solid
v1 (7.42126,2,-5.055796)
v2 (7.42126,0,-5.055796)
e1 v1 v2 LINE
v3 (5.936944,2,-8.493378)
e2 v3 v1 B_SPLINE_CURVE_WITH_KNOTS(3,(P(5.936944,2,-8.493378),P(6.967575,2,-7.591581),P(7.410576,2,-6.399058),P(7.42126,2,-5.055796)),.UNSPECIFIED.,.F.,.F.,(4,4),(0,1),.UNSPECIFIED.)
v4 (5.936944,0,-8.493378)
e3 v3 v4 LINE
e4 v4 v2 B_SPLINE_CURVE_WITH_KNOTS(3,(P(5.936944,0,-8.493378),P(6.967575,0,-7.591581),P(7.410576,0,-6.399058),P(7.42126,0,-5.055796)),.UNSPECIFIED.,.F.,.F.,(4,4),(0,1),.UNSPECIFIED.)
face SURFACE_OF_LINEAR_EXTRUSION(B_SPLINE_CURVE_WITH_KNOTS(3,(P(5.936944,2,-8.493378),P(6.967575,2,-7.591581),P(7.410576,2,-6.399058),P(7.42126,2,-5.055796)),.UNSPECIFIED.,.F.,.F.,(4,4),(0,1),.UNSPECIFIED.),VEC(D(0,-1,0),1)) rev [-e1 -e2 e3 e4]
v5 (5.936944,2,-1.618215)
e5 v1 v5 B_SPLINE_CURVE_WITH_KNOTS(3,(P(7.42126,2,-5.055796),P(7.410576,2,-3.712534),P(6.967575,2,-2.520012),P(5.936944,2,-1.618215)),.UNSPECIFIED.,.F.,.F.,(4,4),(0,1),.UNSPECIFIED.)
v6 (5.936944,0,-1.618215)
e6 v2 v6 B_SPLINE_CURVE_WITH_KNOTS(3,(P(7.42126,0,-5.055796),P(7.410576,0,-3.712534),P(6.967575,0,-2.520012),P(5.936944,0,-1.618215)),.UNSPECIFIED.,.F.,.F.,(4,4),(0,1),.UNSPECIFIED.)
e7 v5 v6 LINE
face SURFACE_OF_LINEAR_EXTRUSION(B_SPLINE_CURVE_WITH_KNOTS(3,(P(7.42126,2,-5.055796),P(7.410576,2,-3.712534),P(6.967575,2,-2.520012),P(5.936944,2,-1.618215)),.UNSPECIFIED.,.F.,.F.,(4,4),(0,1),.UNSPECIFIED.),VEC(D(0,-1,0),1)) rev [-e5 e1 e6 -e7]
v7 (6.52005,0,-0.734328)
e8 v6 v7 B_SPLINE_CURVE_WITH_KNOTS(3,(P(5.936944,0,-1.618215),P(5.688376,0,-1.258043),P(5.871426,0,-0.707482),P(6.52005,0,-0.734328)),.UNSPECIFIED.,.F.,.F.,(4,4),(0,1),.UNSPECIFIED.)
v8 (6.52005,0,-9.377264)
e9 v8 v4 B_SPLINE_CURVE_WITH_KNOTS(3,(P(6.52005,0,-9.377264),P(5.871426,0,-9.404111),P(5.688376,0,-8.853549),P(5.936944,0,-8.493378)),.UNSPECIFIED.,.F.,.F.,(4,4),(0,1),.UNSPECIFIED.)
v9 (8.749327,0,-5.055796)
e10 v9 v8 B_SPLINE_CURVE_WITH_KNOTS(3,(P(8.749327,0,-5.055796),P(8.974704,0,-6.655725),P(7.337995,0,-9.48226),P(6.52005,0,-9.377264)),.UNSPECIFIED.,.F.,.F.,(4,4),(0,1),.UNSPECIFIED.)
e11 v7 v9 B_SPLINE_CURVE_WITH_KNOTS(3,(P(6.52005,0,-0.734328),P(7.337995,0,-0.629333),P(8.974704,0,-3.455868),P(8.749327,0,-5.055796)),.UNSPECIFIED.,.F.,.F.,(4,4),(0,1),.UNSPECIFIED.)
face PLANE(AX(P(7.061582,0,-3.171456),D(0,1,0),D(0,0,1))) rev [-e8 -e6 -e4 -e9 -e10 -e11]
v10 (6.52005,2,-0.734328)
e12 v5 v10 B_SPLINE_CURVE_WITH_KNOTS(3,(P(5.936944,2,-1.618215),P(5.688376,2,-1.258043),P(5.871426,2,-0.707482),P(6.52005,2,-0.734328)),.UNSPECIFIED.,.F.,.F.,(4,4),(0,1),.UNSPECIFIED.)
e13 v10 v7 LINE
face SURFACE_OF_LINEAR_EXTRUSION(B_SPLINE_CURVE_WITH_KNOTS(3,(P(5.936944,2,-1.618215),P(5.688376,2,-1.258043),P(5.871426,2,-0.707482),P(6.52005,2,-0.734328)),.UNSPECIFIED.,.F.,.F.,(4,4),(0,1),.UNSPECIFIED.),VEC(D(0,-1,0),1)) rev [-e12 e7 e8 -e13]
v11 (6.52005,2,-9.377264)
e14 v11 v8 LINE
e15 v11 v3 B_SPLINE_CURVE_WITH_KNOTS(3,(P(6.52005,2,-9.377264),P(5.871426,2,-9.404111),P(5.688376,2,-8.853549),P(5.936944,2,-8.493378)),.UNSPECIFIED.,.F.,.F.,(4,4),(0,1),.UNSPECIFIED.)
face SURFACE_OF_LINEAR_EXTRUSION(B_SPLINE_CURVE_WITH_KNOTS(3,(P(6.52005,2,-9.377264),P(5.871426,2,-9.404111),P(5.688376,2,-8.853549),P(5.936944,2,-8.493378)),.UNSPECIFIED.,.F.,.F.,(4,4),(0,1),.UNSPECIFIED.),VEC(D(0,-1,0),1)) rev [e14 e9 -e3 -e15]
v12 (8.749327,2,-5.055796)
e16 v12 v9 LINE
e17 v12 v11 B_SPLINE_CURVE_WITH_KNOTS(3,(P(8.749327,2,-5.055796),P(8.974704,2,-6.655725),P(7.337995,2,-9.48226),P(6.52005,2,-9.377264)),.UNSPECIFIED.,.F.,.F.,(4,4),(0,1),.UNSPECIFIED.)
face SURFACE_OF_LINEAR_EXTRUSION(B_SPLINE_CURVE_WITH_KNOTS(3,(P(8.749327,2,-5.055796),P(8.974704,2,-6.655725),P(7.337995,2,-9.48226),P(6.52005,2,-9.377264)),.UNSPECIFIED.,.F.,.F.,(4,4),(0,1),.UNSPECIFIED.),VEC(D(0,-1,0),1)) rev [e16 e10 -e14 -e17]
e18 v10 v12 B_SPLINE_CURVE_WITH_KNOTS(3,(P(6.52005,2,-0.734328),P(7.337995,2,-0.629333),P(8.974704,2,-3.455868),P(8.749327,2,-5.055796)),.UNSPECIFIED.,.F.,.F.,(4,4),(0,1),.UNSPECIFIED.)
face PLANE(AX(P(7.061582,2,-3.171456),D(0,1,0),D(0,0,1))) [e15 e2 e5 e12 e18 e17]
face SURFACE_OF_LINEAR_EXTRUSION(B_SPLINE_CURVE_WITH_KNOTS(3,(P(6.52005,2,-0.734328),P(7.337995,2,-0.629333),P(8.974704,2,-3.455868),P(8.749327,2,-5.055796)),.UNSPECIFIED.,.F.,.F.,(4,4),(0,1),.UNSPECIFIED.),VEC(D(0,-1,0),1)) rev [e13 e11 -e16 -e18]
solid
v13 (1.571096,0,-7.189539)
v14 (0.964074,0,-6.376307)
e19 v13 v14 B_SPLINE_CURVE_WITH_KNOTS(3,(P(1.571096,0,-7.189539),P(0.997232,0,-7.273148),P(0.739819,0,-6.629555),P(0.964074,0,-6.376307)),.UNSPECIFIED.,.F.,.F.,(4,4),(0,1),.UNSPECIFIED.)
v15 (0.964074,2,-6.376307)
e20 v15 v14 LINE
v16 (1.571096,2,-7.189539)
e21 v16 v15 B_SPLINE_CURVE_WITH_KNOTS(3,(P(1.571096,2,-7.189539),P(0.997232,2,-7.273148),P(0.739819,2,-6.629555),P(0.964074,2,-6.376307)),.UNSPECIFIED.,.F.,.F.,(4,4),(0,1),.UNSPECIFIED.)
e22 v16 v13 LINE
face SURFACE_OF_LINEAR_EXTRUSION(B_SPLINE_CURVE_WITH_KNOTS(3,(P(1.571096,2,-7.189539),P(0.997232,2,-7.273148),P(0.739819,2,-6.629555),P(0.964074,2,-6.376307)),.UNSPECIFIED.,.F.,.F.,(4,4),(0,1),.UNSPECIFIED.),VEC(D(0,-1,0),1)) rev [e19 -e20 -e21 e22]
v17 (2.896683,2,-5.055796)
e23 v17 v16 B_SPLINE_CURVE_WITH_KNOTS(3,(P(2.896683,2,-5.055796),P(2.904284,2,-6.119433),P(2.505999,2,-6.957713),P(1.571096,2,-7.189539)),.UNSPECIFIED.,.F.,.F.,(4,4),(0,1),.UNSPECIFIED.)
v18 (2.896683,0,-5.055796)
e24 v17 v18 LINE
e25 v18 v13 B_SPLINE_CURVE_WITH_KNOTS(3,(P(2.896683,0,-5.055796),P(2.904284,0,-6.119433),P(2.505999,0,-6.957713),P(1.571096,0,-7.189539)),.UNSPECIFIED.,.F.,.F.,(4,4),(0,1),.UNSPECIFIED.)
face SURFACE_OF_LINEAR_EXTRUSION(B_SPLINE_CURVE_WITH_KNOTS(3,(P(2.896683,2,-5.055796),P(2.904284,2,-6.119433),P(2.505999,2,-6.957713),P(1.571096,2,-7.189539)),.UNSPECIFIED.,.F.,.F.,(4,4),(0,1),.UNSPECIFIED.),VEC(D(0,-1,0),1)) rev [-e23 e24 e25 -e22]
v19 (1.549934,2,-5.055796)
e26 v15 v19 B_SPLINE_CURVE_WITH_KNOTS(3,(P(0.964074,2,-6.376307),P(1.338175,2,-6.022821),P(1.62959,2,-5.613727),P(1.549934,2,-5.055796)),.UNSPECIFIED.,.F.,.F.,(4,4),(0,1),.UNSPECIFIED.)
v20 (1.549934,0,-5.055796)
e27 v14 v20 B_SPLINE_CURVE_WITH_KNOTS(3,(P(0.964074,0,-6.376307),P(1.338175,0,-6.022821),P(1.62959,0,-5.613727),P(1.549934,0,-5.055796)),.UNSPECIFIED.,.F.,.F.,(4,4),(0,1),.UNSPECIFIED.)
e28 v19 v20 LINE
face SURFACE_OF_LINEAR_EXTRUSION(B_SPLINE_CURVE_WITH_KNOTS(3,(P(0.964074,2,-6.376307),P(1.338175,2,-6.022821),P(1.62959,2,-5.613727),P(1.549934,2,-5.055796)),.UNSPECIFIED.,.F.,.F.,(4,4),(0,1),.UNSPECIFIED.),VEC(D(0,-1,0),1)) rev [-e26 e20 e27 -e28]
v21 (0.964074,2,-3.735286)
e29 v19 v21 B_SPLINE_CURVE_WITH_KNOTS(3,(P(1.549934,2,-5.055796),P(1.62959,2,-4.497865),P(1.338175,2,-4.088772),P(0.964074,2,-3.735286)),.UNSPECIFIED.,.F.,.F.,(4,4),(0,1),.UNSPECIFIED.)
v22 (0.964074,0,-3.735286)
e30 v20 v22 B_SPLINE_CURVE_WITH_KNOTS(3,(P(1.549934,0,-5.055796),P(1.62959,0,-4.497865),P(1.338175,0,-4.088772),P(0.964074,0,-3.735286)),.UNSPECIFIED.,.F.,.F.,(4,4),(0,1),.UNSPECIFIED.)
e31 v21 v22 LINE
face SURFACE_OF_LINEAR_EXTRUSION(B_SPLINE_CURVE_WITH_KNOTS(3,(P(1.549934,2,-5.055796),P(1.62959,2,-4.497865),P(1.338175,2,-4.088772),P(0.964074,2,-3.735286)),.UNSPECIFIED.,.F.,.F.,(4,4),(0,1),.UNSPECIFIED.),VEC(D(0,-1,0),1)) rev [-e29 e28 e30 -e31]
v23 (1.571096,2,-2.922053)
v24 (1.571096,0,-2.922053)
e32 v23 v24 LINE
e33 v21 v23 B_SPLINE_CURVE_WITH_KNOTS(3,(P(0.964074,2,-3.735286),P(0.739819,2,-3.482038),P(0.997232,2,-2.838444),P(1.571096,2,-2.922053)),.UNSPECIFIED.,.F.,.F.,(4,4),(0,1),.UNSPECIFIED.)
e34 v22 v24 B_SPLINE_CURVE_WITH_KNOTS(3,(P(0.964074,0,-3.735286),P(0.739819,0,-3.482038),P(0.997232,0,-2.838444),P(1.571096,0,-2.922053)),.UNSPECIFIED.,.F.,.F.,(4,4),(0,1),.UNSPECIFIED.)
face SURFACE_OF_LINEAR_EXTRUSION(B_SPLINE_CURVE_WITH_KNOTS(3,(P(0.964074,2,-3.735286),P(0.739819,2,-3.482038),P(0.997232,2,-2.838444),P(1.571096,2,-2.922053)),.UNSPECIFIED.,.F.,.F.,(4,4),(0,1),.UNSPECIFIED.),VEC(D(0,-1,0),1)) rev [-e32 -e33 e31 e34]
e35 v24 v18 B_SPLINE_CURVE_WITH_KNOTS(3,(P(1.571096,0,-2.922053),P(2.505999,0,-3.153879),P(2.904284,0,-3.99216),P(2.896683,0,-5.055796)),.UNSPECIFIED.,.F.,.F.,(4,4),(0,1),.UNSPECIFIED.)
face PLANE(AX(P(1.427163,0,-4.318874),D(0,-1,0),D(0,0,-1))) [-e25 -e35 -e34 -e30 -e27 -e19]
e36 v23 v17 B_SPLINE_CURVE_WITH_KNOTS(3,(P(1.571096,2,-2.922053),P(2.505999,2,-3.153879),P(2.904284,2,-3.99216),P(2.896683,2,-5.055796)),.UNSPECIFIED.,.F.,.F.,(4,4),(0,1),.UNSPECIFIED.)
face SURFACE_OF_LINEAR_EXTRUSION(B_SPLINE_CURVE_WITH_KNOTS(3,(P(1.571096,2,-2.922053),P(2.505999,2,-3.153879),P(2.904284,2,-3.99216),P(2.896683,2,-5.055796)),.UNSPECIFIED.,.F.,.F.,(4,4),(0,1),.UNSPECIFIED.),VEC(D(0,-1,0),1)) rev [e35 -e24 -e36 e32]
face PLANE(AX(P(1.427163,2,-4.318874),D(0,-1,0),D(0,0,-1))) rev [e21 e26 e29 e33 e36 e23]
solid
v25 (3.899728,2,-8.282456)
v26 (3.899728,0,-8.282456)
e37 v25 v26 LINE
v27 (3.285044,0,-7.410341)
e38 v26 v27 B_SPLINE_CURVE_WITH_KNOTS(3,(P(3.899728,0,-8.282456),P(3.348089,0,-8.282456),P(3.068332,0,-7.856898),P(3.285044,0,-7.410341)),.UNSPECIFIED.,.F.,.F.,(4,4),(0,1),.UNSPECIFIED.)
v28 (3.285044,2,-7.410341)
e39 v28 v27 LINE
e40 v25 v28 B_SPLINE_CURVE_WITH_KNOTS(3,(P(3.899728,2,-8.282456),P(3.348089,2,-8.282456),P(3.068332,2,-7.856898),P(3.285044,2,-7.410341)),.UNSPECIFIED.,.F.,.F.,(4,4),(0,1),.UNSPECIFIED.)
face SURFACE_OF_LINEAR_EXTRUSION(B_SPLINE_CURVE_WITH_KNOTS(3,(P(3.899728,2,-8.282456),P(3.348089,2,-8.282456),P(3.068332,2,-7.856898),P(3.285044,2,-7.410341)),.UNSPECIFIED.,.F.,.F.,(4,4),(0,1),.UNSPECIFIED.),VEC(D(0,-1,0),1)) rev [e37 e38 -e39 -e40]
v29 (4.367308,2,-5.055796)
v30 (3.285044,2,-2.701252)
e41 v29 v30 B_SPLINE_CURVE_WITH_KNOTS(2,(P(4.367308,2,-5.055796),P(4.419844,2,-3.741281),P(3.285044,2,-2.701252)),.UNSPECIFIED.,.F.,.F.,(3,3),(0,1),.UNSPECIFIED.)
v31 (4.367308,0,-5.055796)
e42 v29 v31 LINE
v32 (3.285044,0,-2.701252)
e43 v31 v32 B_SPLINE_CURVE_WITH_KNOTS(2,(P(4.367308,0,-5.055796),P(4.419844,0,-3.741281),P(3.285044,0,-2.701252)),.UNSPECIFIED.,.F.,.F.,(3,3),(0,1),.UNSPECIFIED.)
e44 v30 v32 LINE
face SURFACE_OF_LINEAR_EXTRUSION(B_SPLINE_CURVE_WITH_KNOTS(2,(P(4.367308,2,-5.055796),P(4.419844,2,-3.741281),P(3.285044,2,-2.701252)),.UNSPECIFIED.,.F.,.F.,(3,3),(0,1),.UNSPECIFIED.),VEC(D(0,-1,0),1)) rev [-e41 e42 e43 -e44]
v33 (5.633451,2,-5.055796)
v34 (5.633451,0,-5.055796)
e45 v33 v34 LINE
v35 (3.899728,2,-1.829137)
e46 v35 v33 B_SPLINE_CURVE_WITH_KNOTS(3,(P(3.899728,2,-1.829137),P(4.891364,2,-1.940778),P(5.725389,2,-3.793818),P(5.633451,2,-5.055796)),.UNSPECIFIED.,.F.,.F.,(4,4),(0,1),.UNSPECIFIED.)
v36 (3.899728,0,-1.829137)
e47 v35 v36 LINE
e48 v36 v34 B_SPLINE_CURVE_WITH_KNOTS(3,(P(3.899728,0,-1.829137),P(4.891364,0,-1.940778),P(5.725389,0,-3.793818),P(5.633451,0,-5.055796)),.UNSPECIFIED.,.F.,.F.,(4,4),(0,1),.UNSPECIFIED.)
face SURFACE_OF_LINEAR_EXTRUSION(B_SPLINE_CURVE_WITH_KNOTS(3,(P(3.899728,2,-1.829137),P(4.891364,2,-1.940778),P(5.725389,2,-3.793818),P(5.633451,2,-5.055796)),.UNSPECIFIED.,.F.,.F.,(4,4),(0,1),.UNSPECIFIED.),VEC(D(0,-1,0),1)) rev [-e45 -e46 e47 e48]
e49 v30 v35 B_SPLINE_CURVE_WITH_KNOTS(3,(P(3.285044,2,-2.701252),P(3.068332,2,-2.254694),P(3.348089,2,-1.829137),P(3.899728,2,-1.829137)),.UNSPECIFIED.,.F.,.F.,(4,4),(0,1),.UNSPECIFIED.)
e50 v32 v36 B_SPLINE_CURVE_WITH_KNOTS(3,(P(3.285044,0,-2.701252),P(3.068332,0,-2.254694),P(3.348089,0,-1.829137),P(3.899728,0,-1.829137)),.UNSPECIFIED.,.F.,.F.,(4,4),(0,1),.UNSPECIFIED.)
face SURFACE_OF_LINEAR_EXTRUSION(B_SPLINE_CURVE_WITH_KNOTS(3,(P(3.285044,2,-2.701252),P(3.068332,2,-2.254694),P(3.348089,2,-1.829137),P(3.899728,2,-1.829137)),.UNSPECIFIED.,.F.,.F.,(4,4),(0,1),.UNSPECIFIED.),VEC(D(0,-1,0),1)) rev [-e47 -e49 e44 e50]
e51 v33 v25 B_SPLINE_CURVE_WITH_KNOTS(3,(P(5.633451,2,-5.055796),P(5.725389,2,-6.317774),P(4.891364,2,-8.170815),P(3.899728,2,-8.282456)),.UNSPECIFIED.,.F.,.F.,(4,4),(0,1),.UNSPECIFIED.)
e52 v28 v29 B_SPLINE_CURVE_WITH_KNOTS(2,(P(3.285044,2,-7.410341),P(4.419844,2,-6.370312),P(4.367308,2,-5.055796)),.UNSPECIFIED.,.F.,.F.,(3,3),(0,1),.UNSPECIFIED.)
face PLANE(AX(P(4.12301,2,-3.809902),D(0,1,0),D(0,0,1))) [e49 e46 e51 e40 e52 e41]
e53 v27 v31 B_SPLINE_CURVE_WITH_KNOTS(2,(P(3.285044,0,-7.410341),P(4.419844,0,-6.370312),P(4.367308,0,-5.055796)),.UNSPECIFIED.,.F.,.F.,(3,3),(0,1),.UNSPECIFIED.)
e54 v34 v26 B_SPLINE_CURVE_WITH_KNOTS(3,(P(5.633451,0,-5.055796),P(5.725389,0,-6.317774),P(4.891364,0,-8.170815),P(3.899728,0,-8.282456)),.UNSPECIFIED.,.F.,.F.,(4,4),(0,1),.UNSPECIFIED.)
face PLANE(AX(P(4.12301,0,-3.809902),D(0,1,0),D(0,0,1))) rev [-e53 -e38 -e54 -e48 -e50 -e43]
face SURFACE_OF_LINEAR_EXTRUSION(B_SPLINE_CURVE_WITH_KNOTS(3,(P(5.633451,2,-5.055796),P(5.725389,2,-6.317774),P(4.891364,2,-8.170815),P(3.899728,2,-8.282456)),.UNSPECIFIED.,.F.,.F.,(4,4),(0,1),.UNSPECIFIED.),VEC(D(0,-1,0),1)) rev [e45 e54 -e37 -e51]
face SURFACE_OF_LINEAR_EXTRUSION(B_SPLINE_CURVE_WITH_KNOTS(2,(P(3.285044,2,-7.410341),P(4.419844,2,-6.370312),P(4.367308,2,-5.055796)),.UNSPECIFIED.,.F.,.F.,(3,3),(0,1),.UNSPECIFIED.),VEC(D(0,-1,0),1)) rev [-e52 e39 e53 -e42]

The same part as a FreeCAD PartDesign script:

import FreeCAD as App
import Part
import Sketcher
from FreeCAD import Vector

doc = App.newDocument("Part")
params = doc.addObject("Spreadsheet::Sheet", "Params")
for row, (alias, value) in enumerate([
    ("pad1_length", "2 mm"),
    ("pad2_length", "2 mm"),
    ("pad3_length", "2 mm"),
], start=1):
    params.set(f"A{row}", alias)
    params.set(f"B{row}", "=" + value)
    params.setAlias(f"B{row}", alias)

body = doc.addObject("PartDesign::Body", "Body")

# Sketch on XZ plane
sketch1 = doc.addObject("Sketcher::SketchObject", "Sketch")
body.addObject(sketch1)
sketch1.AttachmentSupport = (doc.XZ_Plane, [""])
sketch1.MapMode = "FlatFace"
sketch1.addGeometry([
    Part.BSplineCurve([Vector(0.964074, -6.376307, 0), Vector(1.338175, -6.022821, 0), Vector(1.62959, -5.613727, 0), Vector(1.549934, -5.055796, 0)], [4, 4], [0, 1], False, 3, [1, 1, 1, 1], False),  # 0
    Part.BSplineCurve([Vector(0.964074, -3.735286, 0), Vector(1.338175, -4.088772, 0), Vector(1.62959, -4.497865, 0), Vector(1.549934, -5.055796, 0)], [4, 4], [0, 1], False, 3, [1, 1, 1, 1], False),  # 1
    Part.BSplineCurve([Vector(0.964074, -3.735286, 0), Vector(0.739819, -3.482038, 0), Vector(0.997232, -2.838444, 0), Vector(1.571096, -2.922053, 0)], [4, 4], [0, 1], False, 3, [1, 1, 1, 1], False),  # 2
    Part.BSplineCurve([Vector(1.571096, -2.922053, 0), Vector(2.505999, -3.153879, 0), Vector(2.904284, -3.99216, 0), Vector(2.896683, -5.055796, 0)], [4, 4], [0, 1], False, 3, [1, 1, 1, 1], False),  # 3
    Part.BSplineCurve([Vector(1.571096, -7.189539, 0), Vector(2.505999, -6.957713, 0), Vector(2.904284, -6.119433, 0), Vector(2.896683, -5.055796, 0)], [4, 4], [0, 1], False, 3, [1, 1, 1, 1], False),  # 4
    Part.BSplineCurve([Vector(0.964074, -6.376307, 0), Vector(0.739819, -6.629555, 0), Vector(0.997232, -7.273148, 0), Vector(1.571096, -7.189539, 0)], [4, 4], [0, 1], False, 3, [1, 1, 1, 1], False),  # 5
], False)
sketch1.addConstraint([
    Sketcher.Constraint("Block", 0),
    Sketcher.Constraint("Block", 1),
    Sketcher.Constraint("Block", 2),
    Sketcher.Constraint("Block", 3),
    Sketcher.Constraint("Block", 4),
    Sketcher.Constraint("Block", 5),
])
pad1 = doc.addObject("PartDesign::Pad", "Pad")
body.addObject(pad1)
pad1.Profile = sketch1
pad1.setExpression("Length", "Params.pad1_length")
pad1.Reversed = True
body2 = doc.addObject("PartDesign::Body", "Body001")

# Sketch on XZ plane
sketch2 = doc.addObject("Sketcher::SketchObject", "Sketch001")
body2.addObject(sketch2)
sketch2.AttachmentSupport = (doc.getObject("XZ_Plane001"), [""])
sketch2.MapMode = "FlatFace"
sketch2.addGeometry([
    Part.BSplineCurve([Vector(4.367308, -5.055796, 0), Vector(4.419844, -6.370312, 0), Vector(3.285044, -7.410341, 0)], [3, 3], [0, 1], False, 2, [1, 1, 1], False),  # 0
    Part.BSplineCurve([Vector(4.367308, -5.055796, 0), Vector(4.419844, -3.741281, 0), Vector(3.285044, -2.701252, 0)], [3, 3], [0, 1], False, 2, [1, 1, 1], False),  # 1
    Part.BSplineCurve([Vector(3.285044, -2.701252, 0), Vector(3.068332, -2.254694, 0), Vector(3.348089, -1.829137, 0), Vector(3.899728, -1.829137, 0)], [4, 4], [0, 1], False, 3, [1, 1, 1, 1], False),  # 2
    Part.BSplineCurve([Vector(3.899728, -1.829137, 0), Vector(4.891364, -1.940778, 0), Vector(5.725389, -3.793818, 0), Vector(5.633451, -5.055796, 0)], [4, 4], [0, 1], False, 3, [1, 1, 1, 1], False),  # 3
    Part.BSplineCurve([Vector(3.899728, -8.282456, 0), Vector(4.891364, -8.170815, 0), Vector(5.725389, -6.317774, 0), Vector(5.633451, -5.055796, 0)], [4, 4], [0, 1], False, 3, [1, 1, 1, 1], False),  # 4
    Part.BSplineCurve([Vector(3.285044, -7.410341, 0), Vector(3.068332, -7.856898, 0), Vector(3.348089, -8.282456, 0), Vector(3.899728, -8.282456, 0)], [4, 4], [0, 1], False, 3, [1, 1, 1, 1], False),  # 5
], False)
sketch2.addConstraint([
    Sketcher.Constraint("Block", 0),
    Sketcher.Constraint("Block", 1),
    Sketcher.Constraint("Block", 2),
    Sketcher.Constraint("Block", 3),
    Sketcher.Constraint("Block", 4),
    Sketcher.Constraint("Block", 5),
])
pad2 = doc.addObject("PartDesign::Pad", "Pad001")
body2.addObject(pad2)
pad2.Profile = sketch2
pad2.setExpression("Length", "Params.pad2_length")
pad2.Reversed = True
body3 = doc.addObject("PartDesign::Body", "Body002")

# Sketch on XZ plane
sketch3 = doc.addObject("Sketcher::SketchObject", "Sketch002")
body3.addObject(sketch3)
sketch3.AttachmentSupport = (doc.getObject("XZ_Plane002"), [""])
sketch3.MapMode = "FlatFace"
sketch3.addGeometry([
    Part.BSplineCurve([Vector(7.42126, -5.055796, 0), Vector(7.410576, -6.399058, 0), Vector(6.967575, -7.591581, 0), Vector(5.936944, -8.493378, 0)], [4, 4], [0, 1], False, 3, [1, 1, 1, 1], False),  # 0
    Part.BSplineCurve([Vector(7.42126, -5.055796, 0), Vector(7.410576, -3.712534, 0), Vector(6.967575, -2.520012, 0), Vector(5.936944, -1.618215, 0)], [4, 4], [0, 1], False, 3, [1, 1, 1, 1], False),  # 1
    Part.BSplineCurve([Vector(5.936944, -1.618215, 0), Vector(5.688376, -1.258043, 0), Vector(5.871426, -0.707482, 0), Vector(6.52005, -0.734328, 0)], [4, 4], [0, 1], False, 3, [1, 1, 1, 1], False),  # 2
    Part.BSplineCurve([Vector(6.52005, -0.734328, 0), Vector(7.337995, -0.629333, 0), Vector(8.974704, -3.455868, 0), Vector(8.749327, -5.055796, 0)], [4, 4], [0, 1], False, 3, [1, 1, 1, 1], False),  # 3
    Part.BSplineCurve([Vector(6.52005, -9.377264, 0), Vector(7.337995, -9.48226, 0), Vector(8.974704, -6.655725, 0), Vector(8.749327, -5.055796, 0)], [4, 4], [0, 1], False, 3, [1, 1, 1, 1], False),  # 4
    Part.BSplineCurve([Vector(5.936944, -8.493378, 0), Vector(5.688376, -8.853549, 0), Vector(5.871426, -9.404111, 0), Vector(6.52005, -9.377264, 0)], [4, 4], [0, 1], False, 3, [1, 1, 1, 1], False),  # 5
], False)
sketch3.addConstraint([
    Sketcher.Constraint("Block", 0),
    Sketcher.Constraint("Block", 1),
    Sketcher.Constraint("Block", 2),
    Sketcher.Constraint("Block", 3),
    Sketcher.Constraint("Block", 4),
    Sketcher.Constraint("Block", 5),
])
pad3 = doc.addObject("PartDesign::Pad", "Pad002")
body3.addObject(pad3)
pad3.Profile = sketch3
pad3.setExpression("Length", "Params.pad3_length")
pad3.Reversed = True

doc.recompute()
